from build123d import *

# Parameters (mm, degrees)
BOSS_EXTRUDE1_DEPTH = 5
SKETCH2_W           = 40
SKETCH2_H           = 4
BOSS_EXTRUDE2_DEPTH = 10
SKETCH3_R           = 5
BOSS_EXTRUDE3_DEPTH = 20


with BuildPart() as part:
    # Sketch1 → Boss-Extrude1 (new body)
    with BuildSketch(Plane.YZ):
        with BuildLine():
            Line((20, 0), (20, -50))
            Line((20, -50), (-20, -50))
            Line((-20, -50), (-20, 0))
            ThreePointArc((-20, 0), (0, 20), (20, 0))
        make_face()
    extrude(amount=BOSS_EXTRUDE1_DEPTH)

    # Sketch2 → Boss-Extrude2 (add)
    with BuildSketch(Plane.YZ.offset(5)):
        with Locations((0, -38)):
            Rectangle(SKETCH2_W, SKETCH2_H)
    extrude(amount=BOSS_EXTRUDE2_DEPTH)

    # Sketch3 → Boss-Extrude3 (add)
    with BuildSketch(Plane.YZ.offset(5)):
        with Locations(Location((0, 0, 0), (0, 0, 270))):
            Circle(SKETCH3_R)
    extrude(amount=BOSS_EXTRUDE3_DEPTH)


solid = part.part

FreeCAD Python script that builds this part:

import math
import FreeCAD as App
import Part
import Sketcher
from FreeCAD import Vector
Q = App.Units.Quantity

doc = App.newDocument("Part")
body = doc.addObject("PartDesign::Body", "Body")

# Sketch on YZ plane
sketch1 = body.newObject("Sketcher::SketchObject", "Sketch")
sketch1.AttachmentSupport = (doc.getObject("YZ_Plane"), [""])
sketch1.MapMode = "FlatFace"
sketch1.addGeometry(Part.LineSegment(Vector(20, -50, 0), Vector(20, 0, 0)), False)
sketch1.addGeometry(Part.ArcOfCircle(Part.Circle(Vector(0, 0, 0), Vector(0, 0, 1), 20), math.radians(0), math.radians(180)), False)
sketch1.addGeometry(Part.LineSegment(Vector(-20, 0, 0), Vector(-20, -50, 0)), False)
sketch1.addGeometry(Part.LineSegment(Vector(-20, -50, 0), Vector(20, -50, 0)), False)
sketch1.addConstraint(Sketcher.Constraint("Tangent", 0, 2, 1, 1))
sketch1.addConstraint(Sketcher.Constraint("Tangent", 1, 2, 2, 1))
sketch1.addConstraint(Sketcher.Constraint("Coincident", 2, 2, 3, 1))
sketch1.addConstraint(Sketcher.Constraint("Coincident", 3, 2, 0, 1))
sketch1.addConstraint(Sketcher.Constraint("Vertical", 0))
sketch1.addConstraint(Sketcher.Constraint("Vertical", 2))
sketch1.addConstraint(Sketcher.Constraint("Horizontal", 3))
sketch1.addConstraint(Sketcher.Constraint("Coincident", 1, 3, -1, 1))
sketch1.addConstraint(Sketcher.Constraint("Radius", 1, Q("20 mm")))
sketch1.addConstraint(Sketcher.Constraint("DistanceY", 0, 1, 0, 2, Q("50 mm")))
pad1 = body.newObject("PartDesign::Pad", "Pad")
pad1.Profile = sketch1
pad1.Length = 5

# Sketch on YZ plane
sketch2 = body.newObject("Sketcher::SketchObject", "Sketch001")
sketch2.AttachmentSupport = (doc.getObject("YZ_Plane"), [""])
sketch2.MapMode = "FlatFace"
sketch2.AttachmentOffset = App.Placement(Vector(0, 0, 5), App.Rotation())
sketch2.addGeometry(Part.LineSegment(Vector(-20, -36, 0), Vector(-20, -40, 0)), False)
sketch2.addGeometry(Part.LineSegment(Vector(-20, -40, 0), Vector(20, -40, 0)), False)
sketch2.addGeometry(Part.LineSegment(Vector(20, -40, 0), Vector(20, -36, 0)), False)
sketch2.addGeometry(Part.LineSegment(Vector(20, -36, 0), Vector(-20, -36, 0)), False)
sketch2.addConstraint(Sketcher.Constraint("Coincident", 0, 2, 1, 1))
sketch2.addConstraint(Sketcher.Constraint("Coincident", 1, 2, 2, 1))
sketch2.addConstraint(Sketcher.Constraint("Coincident", 2, 2, 3, 1))
sketch2.addConstraint(Sketcher.Constraint("Coincident", 3, 2, 0, 1))
sketch2.addConstraint(Sketcher.Constraint("Vertical", 0))
sketch2.addConstraint(Sketcher.Constraint("Horizontal", 1))
sketch2.addConstraint(Sketcher.Constraint("Vertical", 2))
sketch2.addConstraint(Sketcher.Constraint("Horizontal", 3))
sketch2.addConstraint(Sketcher.Constraint("DistanceX", 1, 1, 1, 2, Q("40 mm")))
sketch2.addConstraint(Sketcher.Constraint("DistanceY", 0, 2, 0, 1, Q("4 mm")))
sketch2.addConstraint(Sketcher.Constraint("DistanceX", 0, 2, -1, 1, Q("20 mm")))
sketch2.addConstraint(Sketcher.Constraint("DistanceY", 0, 2, -1, 1, Q("40 mm")))
pad2 = body.newObject("PartDesign::Pad", "Pad001")
pad2.Profile = sketch2
pad2.Length = 10

# Sketch on YZ plane
sketch3 = body.newObject("Sketcher::SketchObject", "Sketch002")
sketch3.AttachmentSupport = (doc.getObject("YZ_Plane"), [""])
sketch3.MapMode = "FlatFace"
sketch3.AttachmentOffset = App.Placement(Vector(0, 0, 5), App.Rotation())
sketch3.addGeometry(Part.Circle(Vector(0, 0, 0), Vector(0, 0, 1), 5), False)
sketch3.addConstraint(Sketcher.Constraint("Coincident", 0, 3, -1, 1))
sketch3.addConstraint(Sketcher.Constraint("Diameter", 0, Q("10 mm")))
pad3 = body.newObject("PartDesign::Pad", "Pad002")
pad3.Profile = sketch3
pad3.Length = 20

doc.recompute()
